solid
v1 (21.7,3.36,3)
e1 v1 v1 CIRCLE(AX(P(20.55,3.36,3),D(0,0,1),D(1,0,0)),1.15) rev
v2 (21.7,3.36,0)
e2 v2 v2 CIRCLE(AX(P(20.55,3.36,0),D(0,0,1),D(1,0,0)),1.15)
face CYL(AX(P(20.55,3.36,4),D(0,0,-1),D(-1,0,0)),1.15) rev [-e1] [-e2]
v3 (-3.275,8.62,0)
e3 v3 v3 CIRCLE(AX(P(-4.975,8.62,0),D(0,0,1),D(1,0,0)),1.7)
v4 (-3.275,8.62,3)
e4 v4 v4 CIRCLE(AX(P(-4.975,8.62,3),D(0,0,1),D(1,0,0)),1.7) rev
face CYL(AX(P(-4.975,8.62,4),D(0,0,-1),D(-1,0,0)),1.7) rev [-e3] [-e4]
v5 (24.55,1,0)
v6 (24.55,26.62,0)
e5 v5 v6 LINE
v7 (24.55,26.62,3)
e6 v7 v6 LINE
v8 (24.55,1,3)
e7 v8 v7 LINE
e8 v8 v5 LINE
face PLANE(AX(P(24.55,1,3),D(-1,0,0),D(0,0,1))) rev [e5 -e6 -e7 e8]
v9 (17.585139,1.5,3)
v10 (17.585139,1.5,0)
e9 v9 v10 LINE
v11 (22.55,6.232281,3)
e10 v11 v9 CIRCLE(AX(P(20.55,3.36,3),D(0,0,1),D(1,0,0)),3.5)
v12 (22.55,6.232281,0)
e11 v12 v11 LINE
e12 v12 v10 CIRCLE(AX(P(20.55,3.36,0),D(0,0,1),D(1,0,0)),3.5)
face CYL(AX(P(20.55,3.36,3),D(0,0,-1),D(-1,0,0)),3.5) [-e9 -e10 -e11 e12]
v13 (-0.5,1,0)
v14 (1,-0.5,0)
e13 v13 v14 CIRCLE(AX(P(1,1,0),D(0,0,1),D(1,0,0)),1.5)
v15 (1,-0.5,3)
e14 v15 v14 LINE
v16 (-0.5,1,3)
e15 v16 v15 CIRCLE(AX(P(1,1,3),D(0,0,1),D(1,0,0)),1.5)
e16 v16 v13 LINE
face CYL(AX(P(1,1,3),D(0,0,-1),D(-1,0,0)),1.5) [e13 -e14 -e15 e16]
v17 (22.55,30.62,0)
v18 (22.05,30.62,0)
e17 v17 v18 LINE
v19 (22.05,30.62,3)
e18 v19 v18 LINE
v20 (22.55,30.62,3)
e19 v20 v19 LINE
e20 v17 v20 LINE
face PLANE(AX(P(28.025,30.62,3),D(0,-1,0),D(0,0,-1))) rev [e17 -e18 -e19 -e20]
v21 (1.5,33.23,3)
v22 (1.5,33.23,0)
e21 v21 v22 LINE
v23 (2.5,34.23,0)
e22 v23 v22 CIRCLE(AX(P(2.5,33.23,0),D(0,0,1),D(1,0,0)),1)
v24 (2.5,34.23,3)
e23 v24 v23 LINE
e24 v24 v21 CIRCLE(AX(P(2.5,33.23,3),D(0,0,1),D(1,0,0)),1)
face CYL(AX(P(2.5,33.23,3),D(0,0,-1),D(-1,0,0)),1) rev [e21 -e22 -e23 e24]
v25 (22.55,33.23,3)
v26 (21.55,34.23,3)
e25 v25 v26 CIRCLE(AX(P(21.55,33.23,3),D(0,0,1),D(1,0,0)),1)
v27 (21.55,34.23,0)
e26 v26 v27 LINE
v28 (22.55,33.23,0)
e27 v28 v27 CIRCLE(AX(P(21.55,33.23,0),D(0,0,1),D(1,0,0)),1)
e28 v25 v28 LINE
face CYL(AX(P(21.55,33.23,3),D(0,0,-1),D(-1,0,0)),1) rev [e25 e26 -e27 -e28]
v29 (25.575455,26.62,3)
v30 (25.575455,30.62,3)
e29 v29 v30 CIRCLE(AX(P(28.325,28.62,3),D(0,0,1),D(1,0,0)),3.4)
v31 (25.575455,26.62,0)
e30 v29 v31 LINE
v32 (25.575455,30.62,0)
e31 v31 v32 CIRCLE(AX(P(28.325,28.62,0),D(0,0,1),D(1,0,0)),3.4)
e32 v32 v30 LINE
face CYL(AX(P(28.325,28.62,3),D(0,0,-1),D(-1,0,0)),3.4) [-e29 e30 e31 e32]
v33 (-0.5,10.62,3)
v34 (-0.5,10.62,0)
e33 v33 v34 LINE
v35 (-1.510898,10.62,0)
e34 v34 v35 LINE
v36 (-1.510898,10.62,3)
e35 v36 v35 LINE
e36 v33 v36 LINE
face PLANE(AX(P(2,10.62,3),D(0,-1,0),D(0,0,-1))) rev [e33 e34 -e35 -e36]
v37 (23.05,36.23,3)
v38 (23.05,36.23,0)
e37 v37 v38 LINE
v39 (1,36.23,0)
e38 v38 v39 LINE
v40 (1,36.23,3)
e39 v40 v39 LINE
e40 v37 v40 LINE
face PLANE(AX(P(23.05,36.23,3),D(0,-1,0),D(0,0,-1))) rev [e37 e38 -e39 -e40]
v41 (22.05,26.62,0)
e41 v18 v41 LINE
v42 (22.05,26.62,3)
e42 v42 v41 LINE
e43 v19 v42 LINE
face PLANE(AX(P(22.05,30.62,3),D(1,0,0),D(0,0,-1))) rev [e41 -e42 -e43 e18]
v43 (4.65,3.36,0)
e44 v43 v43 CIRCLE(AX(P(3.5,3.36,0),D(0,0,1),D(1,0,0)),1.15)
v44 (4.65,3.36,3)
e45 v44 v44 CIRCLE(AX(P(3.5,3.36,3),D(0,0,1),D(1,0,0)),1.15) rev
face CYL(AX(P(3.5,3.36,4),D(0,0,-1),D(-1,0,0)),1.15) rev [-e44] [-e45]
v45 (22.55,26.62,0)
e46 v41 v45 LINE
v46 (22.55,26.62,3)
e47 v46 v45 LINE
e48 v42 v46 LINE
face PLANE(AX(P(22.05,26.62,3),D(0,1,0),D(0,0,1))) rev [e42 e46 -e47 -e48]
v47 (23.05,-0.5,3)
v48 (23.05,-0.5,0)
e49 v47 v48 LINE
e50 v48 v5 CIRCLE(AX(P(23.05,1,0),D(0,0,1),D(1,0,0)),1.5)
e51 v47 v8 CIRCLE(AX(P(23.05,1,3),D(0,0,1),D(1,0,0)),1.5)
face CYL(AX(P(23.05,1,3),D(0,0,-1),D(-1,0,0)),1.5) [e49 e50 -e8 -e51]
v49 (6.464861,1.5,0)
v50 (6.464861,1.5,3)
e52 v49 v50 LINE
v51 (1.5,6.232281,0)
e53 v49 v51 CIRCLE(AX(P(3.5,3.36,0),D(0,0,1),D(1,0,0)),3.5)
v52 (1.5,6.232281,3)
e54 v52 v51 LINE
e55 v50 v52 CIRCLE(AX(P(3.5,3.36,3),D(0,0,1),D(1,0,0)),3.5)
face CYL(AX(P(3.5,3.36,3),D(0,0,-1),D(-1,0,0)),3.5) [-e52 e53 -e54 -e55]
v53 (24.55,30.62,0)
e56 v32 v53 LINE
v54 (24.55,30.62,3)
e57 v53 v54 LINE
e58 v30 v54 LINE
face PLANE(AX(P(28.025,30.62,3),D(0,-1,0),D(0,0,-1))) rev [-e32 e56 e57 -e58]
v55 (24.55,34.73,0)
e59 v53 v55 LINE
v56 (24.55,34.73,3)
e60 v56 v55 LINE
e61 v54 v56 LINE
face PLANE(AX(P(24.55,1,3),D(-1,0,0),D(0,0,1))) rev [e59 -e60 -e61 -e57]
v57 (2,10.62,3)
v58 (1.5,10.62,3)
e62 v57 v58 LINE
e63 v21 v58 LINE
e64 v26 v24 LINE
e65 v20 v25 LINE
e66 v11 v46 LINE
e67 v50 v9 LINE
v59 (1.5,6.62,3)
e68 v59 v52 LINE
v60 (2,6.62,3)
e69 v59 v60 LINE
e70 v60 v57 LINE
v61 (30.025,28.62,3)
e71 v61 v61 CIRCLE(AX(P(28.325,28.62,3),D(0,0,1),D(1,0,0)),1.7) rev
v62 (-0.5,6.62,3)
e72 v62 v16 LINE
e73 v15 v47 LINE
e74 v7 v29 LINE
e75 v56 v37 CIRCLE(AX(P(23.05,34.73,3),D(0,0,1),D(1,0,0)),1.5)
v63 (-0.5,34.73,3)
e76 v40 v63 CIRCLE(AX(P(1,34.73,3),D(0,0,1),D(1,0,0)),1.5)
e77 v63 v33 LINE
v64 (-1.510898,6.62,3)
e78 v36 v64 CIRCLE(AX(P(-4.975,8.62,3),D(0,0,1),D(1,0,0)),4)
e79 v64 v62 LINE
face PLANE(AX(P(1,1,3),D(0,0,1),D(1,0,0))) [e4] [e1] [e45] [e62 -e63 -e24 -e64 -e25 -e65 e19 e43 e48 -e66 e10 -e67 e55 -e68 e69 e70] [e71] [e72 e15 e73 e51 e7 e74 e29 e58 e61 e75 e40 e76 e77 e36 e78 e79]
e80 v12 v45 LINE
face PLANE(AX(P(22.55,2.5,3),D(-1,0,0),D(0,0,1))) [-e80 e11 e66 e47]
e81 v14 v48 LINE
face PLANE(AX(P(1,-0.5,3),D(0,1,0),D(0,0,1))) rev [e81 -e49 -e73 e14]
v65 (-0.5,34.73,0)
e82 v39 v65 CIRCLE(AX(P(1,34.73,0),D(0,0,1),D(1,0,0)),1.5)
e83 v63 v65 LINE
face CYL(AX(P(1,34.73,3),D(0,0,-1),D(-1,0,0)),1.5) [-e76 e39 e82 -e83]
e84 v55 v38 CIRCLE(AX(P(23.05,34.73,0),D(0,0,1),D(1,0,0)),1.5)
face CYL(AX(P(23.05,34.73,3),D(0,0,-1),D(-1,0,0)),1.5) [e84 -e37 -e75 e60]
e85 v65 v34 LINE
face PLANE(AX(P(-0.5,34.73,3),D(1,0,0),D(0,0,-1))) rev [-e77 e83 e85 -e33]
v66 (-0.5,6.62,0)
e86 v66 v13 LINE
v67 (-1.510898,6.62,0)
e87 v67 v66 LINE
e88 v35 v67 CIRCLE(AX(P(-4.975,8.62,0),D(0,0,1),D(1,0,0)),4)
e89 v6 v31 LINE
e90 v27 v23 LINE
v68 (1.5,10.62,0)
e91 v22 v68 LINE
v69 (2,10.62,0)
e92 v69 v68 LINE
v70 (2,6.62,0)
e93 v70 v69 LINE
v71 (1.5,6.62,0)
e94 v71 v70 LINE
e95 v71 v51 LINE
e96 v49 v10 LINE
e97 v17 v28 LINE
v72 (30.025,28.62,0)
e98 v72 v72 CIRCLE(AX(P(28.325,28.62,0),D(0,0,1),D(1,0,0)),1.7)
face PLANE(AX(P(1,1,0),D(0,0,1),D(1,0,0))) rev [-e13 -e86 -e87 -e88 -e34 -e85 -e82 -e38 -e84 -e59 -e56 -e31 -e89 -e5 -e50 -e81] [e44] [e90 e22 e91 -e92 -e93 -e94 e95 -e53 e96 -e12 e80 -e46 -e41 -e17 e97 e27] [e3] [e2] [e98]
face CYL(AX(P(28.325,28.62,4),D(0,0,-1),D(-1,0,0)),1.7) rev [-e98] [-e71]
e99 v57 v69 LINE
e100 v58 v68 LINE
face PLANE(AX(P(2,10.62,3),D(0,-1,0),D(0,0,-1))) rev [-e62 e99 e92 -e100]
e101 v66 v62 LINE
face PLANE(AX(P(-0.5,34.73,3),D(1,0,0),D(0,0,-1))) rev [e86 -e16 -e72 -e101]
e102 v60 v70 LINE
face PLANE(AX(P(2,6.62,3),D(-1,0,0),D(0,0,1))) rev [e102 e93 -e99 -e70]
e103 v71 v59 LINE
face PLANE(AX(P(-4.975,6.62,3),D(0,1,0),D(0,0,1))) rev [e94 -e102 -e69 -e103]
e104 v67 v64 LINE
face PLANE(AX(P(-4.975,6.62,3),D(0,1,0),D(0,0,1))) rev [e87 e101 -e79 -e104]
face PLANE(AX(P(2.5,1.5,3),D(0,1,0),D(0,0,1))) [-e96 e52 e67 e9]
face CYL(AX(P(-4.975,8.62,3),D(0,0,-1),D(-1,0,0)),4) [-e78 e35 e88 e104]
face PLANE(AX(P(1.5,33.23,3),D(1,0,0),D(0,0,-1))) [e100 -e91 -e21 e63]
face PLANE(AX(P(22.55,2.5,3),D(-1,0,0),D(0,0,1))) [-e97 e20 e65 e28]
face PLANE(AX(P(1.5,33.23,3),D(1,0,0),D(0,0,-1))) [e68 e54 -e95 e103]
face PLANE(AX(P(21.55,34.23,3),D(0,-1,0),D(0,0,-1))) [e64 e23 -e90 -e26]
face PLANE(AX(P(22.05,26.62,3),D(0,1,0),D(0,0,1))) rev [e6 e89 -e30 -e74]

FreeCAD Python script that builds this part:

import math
import FreeCAD as App
import Part
import Sketcher
Q = App.Units.Quantity

doc = App.newDocument("Part")
body = doc.addObject("PartDesign::Body", "Body")

# Sketch on XY plane
sketch1 = body.newObject("Sketcher::SketchObject", "Sketch")
sketch1.AttachmentSupport = (doc.getObject("XY_Plane"), [""])
sketch1.MapMode = "FlatFace"
sketch1.addGeometry([
    Part.LineSegment(App.Vector(1, -0.5, 0), App.Vector(23.1, -0.5, 0)),  # 0
    Part.ArcOfCircle(Part.Circle(App.Vector(23.1, 1, 0), App.Vector(0, 0, 1), 1.5), math.radians(-90), math.radians(0)),  # 1
    Part.LineSegment(App.Vector(24.6, 1, 0), App.Vector(24.6, 34.7, 0)),  # 2
    Part.ArcOfCircle(Part.Circle(App.Vector(23.1, 34.7, 0), App.Vector(0, 0, 1), 1.5), math.radians(0), math.radians(90)),  # 3
    Part.LineSegment(App.Vector(23.1, 36.2, 0), App.Vector(1, 36.2, 0)),  # 4
    Part.ArcOfCircle(Part.Circle(App.Vector(1, 34.7, 0), App.Vector(0, 0, 1), 1.5), math.radians(90), math.radians(180)),  # 5
    Part.LineSegment(App.Vector(-0.5, 34.7, 0), App.Vector(-0.5, 1, 0)),  # 6
    Part.ArcOfCircle(Part.Circle(App.Vector(1, 1, 0), App.Vector(0, 0, 1), 1.5), math.radians(180), math.radians(270)),  # 7
    Part.LineSegment(App.Vector(21.6, 1.5, 0), App.Vector(2.5, 1.5, 0)),  # 8
    Part.ArcOfCircle(Part.Circle(App.Vector(2.5, 2.5, 0), App.Vector(0, 0, 1), 1), math.radians(-180), math.radians(-90)),  # 9
    Part.LineSegment(App.Vector(1.5, 2.5, 0), App.Vector(1.5, 33.2, 0)),  # 10
    Part.ArcOfCircle(Part.Circle(App.Vector(2.5, 33.2, 0), App.Vector(0, 0, 1), 1), math.radians(90), math.radians(180)),  # 11
    Part.LineSegment(App.Vector(2.5, 34.2, 0), App.Vector(21.6, 34.2, 0)),  # 12
    Part.ArcOfCircle(Part.Circle(App.Vector(21.5, 33.2, 0), App.Vector(0, 0, 1), 1), math.radians(0), math.radians(90)),  # 13
    Part.LineSegment(App.Vector(22.6, 33.2, 0), App.Vector(22.6, 2.5, 0)),  # 14
    Part.ArcOfCircle(Part.Circle(App.Vector(21.5, 2.5, 0), App.Vector(0, 0, 1), 1), math.radians(-90), math.radians(0)),  # 15
], False)
sketch1.addConstraint([
    Sketcher.Constraint("Tangent", 0, 2, 1, 1),
    Sketcher.Constraint("Tangent", 1, 2, 2, 1),
    Sketcher.Constraint("Tangent", 2, 2, 3, 1),
    Sketcher.Constraint("Tangent", 3, 2, 4, 1),
    Sketcher.Constraint("Tangent", 4, 2, 5, 1),
    Sketcher.Constraint("Tangent", 5, 2, 6, 1),
    Sketcher.Constraint("Tangent", 6, 2, 7, 1),
    Sketcher.Constraint("Tangent", 7, 2, 0, 1),
    Sketcher.Constraint("Tangent", 8, 2, 9, 2),
    Sketcher.Constraint("Tangent", 9, 1, 10, 1),
    Sketcher.Constraint("Tangent", 10, 2, 11, 2),
    Sketcher.Constraint("Tangent", 11, 1, 12, 1),
    Sketcher.Constraint("Tangent", 12, 2, 13, 2),
    Sketcher.Constraint("Tangent", 13, 1, 14, 1),
    Sketcher.Constraint("Tangent", 14, 2, 15, 2),
    Sketcher.Constraint("Tangent", 15, 1, 8, 1),
    Sketcher.Constraint("Horizontal", 0),
    Sketcher.Constraint("Vertical", 2),
    Sketcher.Constraint("Horizontal", 4),
    Sketcher.Constraint("Vertical", 6),
    Sketcher.Constraint("Horizontal", 8),
    Sketcher.Constraint("Vertical", 10),
    Sketcher.Constraint("Horizontal", 12),
    Sketcher.Constraint("Vertical", 14),
    Sketcher.Constraint("Equal", 1, 3),
    Sketcher.Constraint("Equal", 3, 5),
    Sketcher.Constraint("Equal", 5, 7),
    Sketcher.Constraint("Equal", 9, 11),
    Sketcher.Constraint("Equal", 11, 13),
    Sketcher.Constraint("Equal", 13, 15),
    Sketcher.Constraint("Radius", 9, Q("1 mm")),
    Sketcher.Constraint("Radius", 1, Q("1.5 mm")),
    Sketcher.Constraint("DistanceY", -1, 1, 1, 3, Q("1 mm")),
    Sketcher.Constraint("DistanceX", -1, 1, 5, 3, Q("1 mm")),
    Sketcher.Constraint("DistanceY", 0, 2, 15, 3, Q("3 mm")),
    Sketcher.Constraint("DistanceX", 15, 3, 1, 2, Q("3 mm")),
    Sketcher.Constraint("DistanceY", 13, 3, 3, 2, Q("3 mm")),
    Sketcher.Constraint("DistanceX", 5, 2, 11, 3, Q("3 mm")),
    Sketcher.Constraint("DistanceX", 0, 1, 0, 2, Q("22.05 mm")),
    Sketcher.Constraint("DistanceY", 2, 1, 2, 2, Q("33.73 mm")),
])
pad1 = body.newObject("PartDesign::Pad", "Pad")
pad1.Profile = sketch1
pad1.Length = 3

# Sketch on XY plane
sketch2 = body.newObject("Sketcher::SketchObject", "Sketch001")
sketch2.AttachmentSupport = (doc.getObject("XY_Plane"), [""])
sketch2.MapMode = "FlatFace"
sketch2.addGeometry([
    Part.Circle(App.Vector(3.5, 3.4, 0), App.Vector(0, 0, 1), 3.5),
    Part.Circle(App.Vector(20.6, 3.4, 0), App.Vector(0, 0, 1), 3.5),
], False)
sketch2.addConstraint([
    Sketcher.Constraint("Equal", 0, 1),
    Sketcher.Constraint("Horizontal", 0, 3, 1, 3),
    Sketcher.Constraint("Diameter", 0, Q("7 mm")),
    Sketcher.Constraint("DistanceX", -1, 1, 0, 3, Q("3.5 mm")),
    Sketcher.Constraint("DistanceY", -1, 1, 0, 3, Q("3.36 mm")),
    Sketcher.Constraint("DistanceX", -1, 1, 1, 3, Q("20.55 mm")),
])
pad2 = body.newObject("PartDesign::Pad", "Pad001")
pad2.Profile = sketch2
pad2.Length = 3

# Sketch on XY plane
sketch3 = body.newObject("Sketcher::SketchObject", "Sketch002")
sketch3.AttachmentSupport = (doc.getObject("XY_Plane"), [""])
sketch3.MapMode = "FlatFace"
sketch3.addGeometry([
    Part.LineSegment(App.Vector(-5, 10.6, 0), App.Vector(-5, 6.6, 0)),  # 0
    Part.LineSegment(App.Vector(-5, 6.6, 0), App.Vector(2, 6.6, 0)),  # 1
    Part.LineSegment(App.Vector(2, 6.6, 0), App.Vector(2, 10.6, 0)),  # 2
    Part.LineSegment(App.Vector(2, 10.6, 0), App.Vector(-5, 10.6, 0)),  # 3
    Part.LineSegment(App.Vector(22.1, 30.6, 0), App.Vector(22.1, 26.6, 0)),  # 4
    Part.LineSegment(App.Vector(22.1, 26.6, 0), App.Vector(28, 26.6, 0)),  # 5
    Part.LineSegment(App.Vector(28, 26.6, 0), App.Vector(28, 30.6, 0)),  # 6
    Part.LineSegment(App.Vector(28, 30.6, 0), App.Vector(22.1, 30.6, 0)),  # 7
], False)
sketch3.addConstraint([
    Sketcher.Constraint("Coincident", 0, 2, 1, 1),
    Sketcher.Constraint("Coincident", 1, 2, 2, 1),
    Sketcher.Constraint("Coincident", 2, 2, 3, 1),
    Sketcher.Constraint("Coincident", 3, 2, 0, 1),
    Sketcher.Constraint("Coincident", 4, 2, 5, 1),
    Sketcher.Constraint("Coincident", 5, 2, 6, 1),
    Sketcher.Constraint("Coincident", 6, 2, 7, 1),
    Sketcher.Constraint("Coincident", 7, 2, 4, 1),
    Sketcher.Constraint("Vertical", 0),
    Sketcher.Constraint("Horizontal", 1),
    Sketcher.Constraint("Vertical", 2),
    Sketcher.Constraint("Horizontal", 3),
    Sketcher.Constraint("Vertical", 4),
    Sketcher.Constraint("Horizontal", 5),
    Sketcher.Constraint("Vertical", 6),
    Sketcher.Constraint("Horizontal", 7),
    Sketcher.Constraint("Equal", 2, 4),
    Sketcher.Constraint("DistanceY", 0, 2, 0, 1, Q("4 mm")),
    Sketcher.Constraint("DistanceX", -1, 1, 1, 2, Q("2 mm")),
    Sketcher.Constraint("DistanceY", 2, 2, 4, 2, Q("16 mm")),
    Sketcher.Constraint("DistanceX", 3, 2, 5, 2, Q("33 mm")),
    Sketcher.Constraint("DistanceX", 1, 1, 1, 2, Q("6.975 mm")),
    Sketcher.Constraint("DistanceX", 5, 1, 5, 2, Q("5.975 mm")),
    Sketcher.Constraint("DistanceY", -1, 1, 0, 2, Q("6.62 mm")),
])
pad3 = body.newObject("PartDesign::Pad", "Pad002")
pad3.Profile = sketch3
pad3.Length = 3

# Sketch on XY plane
sketch4 = body.newObject("Sketcher::SketchObject", "Sketch003")
sketch4.AttachmentSupport = (doc.getObject("XY_Plane"), [""])
sketch4.MapMode = "FlatFace"
sketch4.addGeometry([
    Part.Circle(App.Vector(-5, 8.6, 0), App.Vector(0, 0, 1), 4),
    Part.Circle(App.Vector(28.3, 28.6, 0), App.Vector(0, 0, 1), 3.4),
], False)
sketch4.addConstraint([
    Sketcher.Constraint("Diameter", 0, Q("8 mm")),
    Sketcher.Constraint("Diameter", 1, Q("6.8 mm")),
    Sketcher.Constraint("DistanceY", 0, 3, 1, 3, Q("20 mm")),
    Sketcher.Constraint("DistanceX", 0, 3, 1, 3, Q("33.3 mm")),
    Sketcher.Constraint("DistanceY", -1, 1, 0, 3, Q("8.62 mm")),
    Sketcher.Constraint("DistanceX", 0, 3, -1, 1, Q("4.975 mm")),
])
pad4 = body.newObject("PartDesign::Pad", "Pad003")
pad4.Profile = sketch4
pad4.Length = 3

# Sketch on XY plane
sketch5 = body.newObject("Sketcher::SketchObject", "Sketch004")
sketch5.AttachmentSupport = (doc.getObject("XY_Plane"), [""])
sketch5.MapMode = "FlatFace"
sketch5.addGeometry([
    Part.Circle(App.Vector(3.5, 3.4, 0), App.Vector(0, 0, 1), 1.1),
    Part.Circle(App.Vector(20.6, 3.4, 0), App.Vector(0, 0, 1), 1.1),
], False)
sketch5.addConstraint([
    Sketcher.Constraint("Equal", 0, 1),
    Sketcher.Constraint("Horizontal", 0, 3, 1, 3),
    Sketcher.Constraint("Diameter", 0, Q("2.3 mm")),
    Sketcher.Constraint("DistanceX", -1, 1, 0, 3, Q("3.5 mm")),
    Sketcher.Constraint("DistanceY", -1, 1, 0, 3, Q("3.36 mm")),
    Sketcher.Constraint("DistanceX", -1, 1, 1, 3, Q("20.55 mm")),
])
pocket1 = body.newObject("PartDesign::Pocket", "Pocket")
pocket1.Profile = sketch5
pocket1.Length = 4
pocket1.Reversed = True

# Sketch on XY plane
sketch6 = body.newObject("Sketcher::SketchObject", "Sketch005")
sketch6.AttachmentSupport = (doc.getObject("XY_Plane"), [""])
sketch6.MapMode = "FlatFace"
sketch6.addGeometry([
    Part.Circle(App.Vector(-5, 8.6, 0), App.Vector(0, 0, 1), 1.7),
    Part.Circle(App.Vector(28.3, 28.6, 0), App.Vector(0, 0, 1), 1.7),
], False)
sketch6.addConstraint([
    Sketcher.Constraint("Equal", 0, 1),
    Sketcher.Constraint("Diameter", 0, Q("3.4 mm")),
    Sketcher.Constraint("DistanceY", 0, 3, 1, 3, Q("20 mm")),
    Sketcher.Constraint("DistanceX", 0, 3, 1, 3, Q("33.3 mm")),
    Sketcher.Constraint("DistanceY", -1, 1, 0, 3, Q("8.62 mm")),
    Sketcher.Constraint("DistanceX", 0, 3, -1, 1, Q("4.975 mm")),
])
pocket2 = body.newObject("PartDesign::Pocket", "Pocket001")
pocket2.Profile = sketch6
pocket2.Length = 4
pocket2.Reversed = True

doc.recompute()
